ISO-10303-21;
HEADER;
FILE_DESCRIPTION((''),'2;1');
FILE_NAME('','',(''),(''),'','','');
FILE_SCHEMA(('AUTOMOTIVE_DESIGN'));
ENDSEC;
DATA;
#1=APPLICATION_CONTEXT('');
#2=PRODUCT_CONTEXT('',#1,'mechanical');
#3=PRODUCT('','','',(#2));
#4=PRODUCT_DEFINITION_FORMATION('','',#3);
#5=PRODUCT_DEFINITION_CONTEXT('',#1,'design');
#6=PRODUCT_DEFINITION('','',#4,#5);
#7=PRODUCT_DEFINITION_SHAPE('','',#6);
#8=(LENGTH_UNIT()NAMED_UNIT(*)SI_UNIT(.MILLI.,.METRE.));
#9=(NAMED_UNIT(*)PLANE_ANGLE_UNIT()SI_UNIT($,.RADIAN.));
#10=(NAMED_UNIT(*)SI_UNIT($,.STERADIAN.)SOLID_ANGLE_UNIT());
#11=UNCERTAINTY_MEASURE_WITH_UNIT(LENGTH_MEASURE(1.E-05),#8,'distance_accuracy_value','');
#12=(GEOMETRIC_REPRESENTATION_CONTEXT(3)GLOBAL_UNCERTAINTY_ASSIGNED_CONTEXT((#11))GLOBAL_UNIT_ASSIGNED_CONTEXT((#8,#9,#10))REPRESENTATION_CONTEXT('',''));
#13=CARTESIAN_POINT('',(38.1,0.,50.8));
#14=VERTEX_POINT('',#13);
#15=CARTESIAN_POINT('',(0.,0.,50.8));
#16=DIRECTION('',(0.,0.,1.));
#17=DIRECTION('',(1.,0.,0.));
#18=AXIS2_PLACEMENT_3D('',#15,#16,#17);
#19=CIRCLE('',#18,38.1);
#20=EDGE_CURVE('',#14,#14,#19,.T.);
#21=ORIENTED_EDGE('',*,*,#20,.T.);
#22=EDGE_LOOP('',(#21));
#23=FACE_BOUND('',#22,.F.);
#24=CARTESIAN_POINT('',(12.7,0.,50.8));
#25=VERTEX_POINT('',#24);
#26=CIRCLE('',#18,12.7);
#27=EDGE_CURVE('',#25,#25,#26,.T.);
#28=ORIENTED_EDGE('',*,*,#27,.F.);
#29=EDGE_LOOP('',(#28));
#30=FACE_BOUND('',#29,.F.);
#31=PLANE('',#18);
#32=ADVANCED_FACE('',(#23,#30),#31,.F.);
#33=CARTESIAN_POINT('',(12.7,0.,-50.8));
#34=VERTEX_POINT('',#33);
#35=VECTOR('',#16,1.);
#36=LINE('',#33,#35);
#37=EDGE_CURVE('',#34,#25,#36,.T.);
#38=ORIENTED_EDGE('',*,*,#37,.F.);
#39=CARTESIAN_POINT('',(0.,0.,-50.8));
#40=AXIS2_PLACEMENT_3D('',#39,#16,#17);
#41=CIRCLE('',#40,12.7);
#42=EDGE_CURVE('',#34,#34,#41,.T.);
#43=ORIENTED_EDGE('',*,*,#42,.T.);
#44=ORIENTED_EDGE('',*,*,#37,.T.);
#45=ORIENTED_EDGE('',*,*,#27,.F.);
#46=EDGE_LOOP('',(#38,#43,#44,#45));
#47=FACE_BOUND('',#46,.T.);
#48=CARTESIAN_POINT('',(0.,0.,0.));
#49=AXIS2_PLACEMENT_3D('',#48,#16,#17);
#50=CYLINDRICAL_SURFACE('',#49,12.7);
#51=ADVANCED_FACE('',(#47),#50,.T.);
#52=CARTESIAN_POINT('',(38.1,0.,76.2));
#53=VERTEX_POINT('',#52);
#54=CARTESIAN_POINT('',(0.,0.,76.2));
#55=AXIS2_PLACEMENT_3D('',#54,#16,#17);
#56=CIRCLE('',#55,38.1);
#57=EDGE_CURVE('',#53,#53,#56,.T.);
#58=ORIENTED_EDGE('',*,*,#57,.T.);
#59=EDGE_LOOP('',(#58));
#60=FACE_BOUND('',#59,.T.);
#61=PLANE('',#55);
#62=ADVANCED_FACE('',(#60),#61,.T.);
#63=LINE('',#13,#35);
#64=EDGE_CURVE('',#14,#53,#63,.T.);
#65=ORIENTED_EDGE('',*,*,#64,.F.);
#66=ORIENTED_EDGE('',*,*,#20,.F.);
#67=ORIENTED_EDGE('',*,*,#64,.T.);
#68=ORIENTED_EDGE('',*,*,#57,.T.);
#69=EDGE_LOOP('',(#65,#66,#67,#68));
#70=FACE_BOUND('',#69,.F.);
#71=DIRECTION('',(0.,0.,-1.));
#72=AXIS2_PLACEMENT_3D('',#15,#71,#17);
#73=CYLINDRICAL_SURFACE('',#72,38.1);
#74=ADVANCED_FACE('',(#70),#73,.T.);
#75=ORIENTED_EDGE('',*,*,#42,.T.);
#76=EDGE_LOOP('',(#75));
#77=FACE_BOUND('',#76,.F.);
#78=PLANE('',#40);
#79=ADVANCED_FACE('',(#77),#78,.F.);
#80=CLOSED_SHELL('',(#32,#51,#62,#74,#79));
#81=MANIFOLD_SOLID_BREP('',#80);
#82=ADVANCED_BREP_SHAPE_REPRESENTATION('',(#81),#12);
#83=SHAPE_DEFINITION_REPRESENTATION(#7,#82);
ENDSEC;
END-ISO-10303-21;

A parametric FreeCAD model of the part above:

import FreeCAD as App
import Part
import Sketcher

V = App.Vector
Q = App.Units.Quantity

doc = App.newDocument("Part")
params = doc.addObject("Spreadsheet::Sheet", "Params")
for row, (alias, value) in enumerate([
    ("sketch1_diameter", "1 in"),
    ("pad1_length", "2 in"),
    ("sketch2_diameter", "1 in"),
    ("pad2_length", "2 in"),
    ("sketch3_diameter", "3 in"),
    ("pad3_length", "1 in"),
], start=1):
    params.set(f"A{row}", alias)
    params.set(f"B{row}", "=" + value)
    params.setAlias(f"B{row}", alias)

body = doc.addObject("PartDesign::Body", "Body")

# Sketch on XY plane
sketch1 = doc.addObject("Sketcher::SketchObject", "Sketch")
body.addObject(sketch1)
sketch1.AttachmentSupport = (doc.XY_Plane, [""])
sketch1.MapMode = "FlatFace"
sketch1.addGeometry(Part.Circle(V(0, 0, 0), V(0, 0, 1), 13), False)
sketch1.addConstraint([
    Sketcher.Constraint("Coincident", 0, 3, -1, 1),
    Sketcher.Constraint("Diameter", 0, Q("1 in")),
])
sketch1.setExpression("Constraints[1]", "Params.sketch1_diameter")
pad1 = doc.addObject("PartDesign::Pad", "Pad")
body.addObject(pad1)
pad1.Profile = sketch1
pad1.setExpression("Length", "Params.pad1_length")
pad1.Reversed = True

# Sketch on XY plane
sketch2 = doc.addObject("Sketcher::SketchObject", "Sketch001")
body.addObject(sketch2)
sketch2.AttachmentSupport = (doc.XY_Plane, [""])
sketch2.MapMode = "FlatFace"
sketch2.addGeometry(Part.Circle(V(0, 0, 0), V(0, 0, 1), 13), False)
sketch2.addConstraint([
    Sketcher.Constraint("Coincident", 0, 3, -1, 1),
    Sketcher.Constraint("Diameter", 0, Q("1 in")),
])
sketch2.setExpression("Constraints[1]", "Params.sketch2_diameter")
pad2 = doc.addObject("PartDesign::Pad", "Pad001")
body.addObject(pad2)
pad2.Profile = sketch2
pad2.setExpression("Length", "Params.pad2_length")

# Sketch on XY plane
sketch3 = doc.addObject("Sketcher::SketchObject", "Sketch002")
body.addObject(sketch3)
sketch3.AttachmentSupport = (doc.XY_Plane, [""])
sketch3.MapMode = "FlatFace"
sketch3.AttachmentOffset = App.Placement(V(0, 0, 2 * 25.4), App.Rotation())
sketch3.addGeometry(Part.Circle(V(0, 0, 0), V(0, 0, 1), 38), False)
sketch3.addConstraint([
    Sketcher.Constraint("Coincident", 0, 3, -1, 1),
    Sketcher.Constraint("Diameter", 0, Q("3 in")),
])
sketch3.setExpression("Constraints[1]", "Params.sketch3_diameter")
pad3 = doc.addObject("PartDesign::Pad", "Pad002")
body.addObject(pad3)
pad3.Profile = sketch3
pad3.setExpression("Length", "Params.pad3_length")

doc.recompute()
